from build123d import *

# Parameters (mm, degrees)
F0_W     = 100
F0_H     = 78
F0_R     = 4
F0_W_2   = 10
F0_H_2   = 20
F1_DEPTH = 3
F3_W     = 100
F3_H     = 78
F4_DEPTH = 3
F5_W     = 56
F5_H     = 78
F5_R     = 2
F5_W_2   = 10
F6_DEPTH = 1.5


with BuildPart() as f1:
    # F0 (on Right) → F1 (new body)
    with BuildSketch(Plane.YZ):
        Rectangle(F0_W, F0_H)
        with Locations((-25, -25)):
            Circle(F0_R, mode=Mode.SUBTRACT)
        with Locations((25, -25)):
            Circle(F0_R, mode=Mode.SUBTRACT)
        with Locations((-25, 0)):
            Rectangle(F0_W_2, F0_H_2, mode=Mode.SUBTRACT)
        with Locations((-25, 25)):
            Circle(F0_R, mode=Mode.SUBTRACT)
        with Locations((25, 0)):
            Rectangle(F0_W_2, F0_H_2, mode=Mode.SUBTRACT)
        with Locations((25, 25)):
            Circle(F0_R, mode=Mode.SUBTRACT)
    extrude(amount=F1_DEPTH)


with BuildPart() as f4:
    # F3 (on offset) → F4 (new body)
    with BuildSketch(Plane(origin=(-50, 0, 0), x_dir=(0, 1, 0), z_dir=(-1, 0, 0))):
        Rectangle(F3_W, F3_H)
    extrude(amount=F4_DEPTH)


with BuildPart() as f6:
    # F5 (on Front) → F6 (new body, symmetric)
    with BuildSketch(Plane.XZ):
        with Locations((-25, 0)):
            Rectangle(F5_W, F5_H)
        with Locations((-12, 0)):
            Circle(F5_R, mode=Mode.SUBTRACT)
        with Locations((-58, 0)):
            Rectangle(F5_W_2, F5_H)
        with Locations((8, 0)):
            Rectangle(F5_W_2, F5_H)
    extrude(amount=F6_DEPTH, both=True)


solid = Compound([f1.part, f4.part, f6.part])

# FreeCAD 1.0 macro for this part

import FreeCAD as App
import Part
import Sketcher
from FreeCAD import Vector
Q = App.Units.Quantity

doc = App.newDocument("Part")
body = doc.addObject("PartDesign::Body", "Body")

sketch1 = body.newObject("Sketcher::SketchObject", "Sketch")
sketch1.AttachmentSupport = (doc.getObject("YZ_Plane"), [""])
sketch1.MapMode = "FlatFace"
sketch1.addGeometry(Part.LineSegment(Vector(-50, 39, 0), Vector(-50, -39, 0)), False)
sketch1.addGeometry(Part.LineSegment(Vector(-50, -39, 0), Vector(50, -39, 0)), False)
sketch1.addGeometry(Part.LineSegment(Vector(50, -39, 0), Vector(50, 39, 0)), False)
sketch1.addGeometry(Part.LineSegment(Vector(50, 39, 0), Vector(-50, 39, 0)), False)
sketch1.addGeometry(Part.Circle(Vector(-25, -25, 0), Vector(0, 0, 1), 4), False)
sketch1.addGeometry(Part.Circle(Vector(25, -25, 0), Vector(0, 0, 1), 4), False)
sketch1.addGeometry(Part.LineSegment(Vector(-20, -10, 0), Vector(-30, -10, 0)), False)
sketch1.addGeometry(Part.LineSegment(Vector(-30, -10, 0), Vector(-30, 10, 0)), False)
sketch1.addGeometry(Part.LineSegment(Vector(-30, 10, 0), Vector(-20, 10, 0)), False)
sketch1.addGeometry(Part.LineSegment(Vector(-20, 10, 0), Vector(-20, -10, 0)), False)
sketch1.addGeometry(Part.Circle(Vector(-25, 25, 0), Vector(0, 0, 1), 4), False)
sketch1.addGeometry(Part.LineSegment(Vector(30, -10, 0), Vector(20, -10, 0)), False)
sketch1.addGeometry(Part.LineSegment(Vector(20, -10, 0), Vector(20, 10, 0)), False)
sketch1.addGeometry(Part.LineSegment(Vector(20, 10, 0), Vector(30, 10, 0)), False)
sketch1.addGeometry(Part.LineSegment(Vector(30, 10, 0), Vector(30, -10, 0)), False)
sketch1.addGeometry(Part.Circle(Vector(25, 25, 0), Vector(0, 0, 1), 4), False)
sketch1.addConstraint(Sketcher.Constraint("Coincident", 0, 2, 1, 1))
sketch1.addConstraint(Sketcher.Constraint("Coincident", 1, 2, 2, 1))
sketch1.addConstraint(Sketcher.Constraint("Coincident", 2, 2, 3, 1))
sketch1.addConstraint(Sketcher.Constraint("Coincident", 3, 2, 0, 1))
sketch1.addConstraint(Sketcher.Constraint("Coincident", 6, 2, 7, 1))
sketch1.addConstraint(Sketcher.Constraint("Coincident", 7, 2, 8, 1))
sketch1.addConstraint(Sketcher.Constraint("Coincident", 8, 2, 9, 1))
sketch1.addConstraint(Sketcher.Constraint("Coincident", 9, 2, 6, 1))
sketch1.addConstraint(Sketcher.Constraint("Coincident", 11, 2, 12, 1))
sketch1.addConstraint(Sketcher.Constraint("Coincident", 12, 2, 13, 1))
sketch1.addConstraint(Sketcher.Constraint("Coincident", 13, 2, 14, 1))
sketch1.addConstraint(Sketcher.Constraint("Coincident", 14, 2, 11, 1))
sketch1.addConstraint(Sketcher.Constraint("Vertical", 0))
sketch1.addConstraint(Sketcher.Constraint("Horizontal", 1))
sketch1.addConstraint(Sketcher.Constraint("Vertical", 2))
sketch1.addConstraint(Sketcher.Constraint("Horizontal", 3))
sketch1.addConstraint(Sketcher.Constraint("Horizontal", 6))
sketch1.addConstraint(Sketcher.Constraint("Vertical", 7))
sketch1.addConstraint(Sketcher.Constraint("Horizontal", 8))
sketch1.addConstraint(Sketcher.Constraint("Vertical", 9))
sketch1.addConstraint(Sketcher.Constraint("Horizontal", 11))
sketch1.addConstraint(Sketcher.Constraint("Vertical", 12))
sketch1.addConstraint(Sketcher.Constraint("Horizontal", 13))
sketch1.addConstraint(Sketcher.Constraint("Vertical", 14))
sketch1.addConstraint(Sketcher.Constraint("Equal", 4, 5))
sketch1.addConstraint(Sketcher.Constraint("Equal", 5, 10))
sketch1.addConstraint(Sketcher.Constraint("Equal", 10, 15))
sketch1.addConstraint(Sketcher.Constraint("Symmetric", 5, 3, 10, 3, -1, 1))
sketch1.addConstraint(Sketcher.Constraint("Symmetric", 4, 3, 15, 3, -1, 1))
sketch1.addConstraint(Sketcher.Constraint("Symmetric", 0, 2, 2, 2, -1, 1))
sketch1.addConstraint(Sketcher.Constraint("Symmetric", 8, 2, 11, 2, -1, 1))
sketch1.addConstraint(Sketcher.Constraint("Symmetric", 6, 2, 13, 2, -1, 1))
sketch1.addConstraint(Sketcher.Constraint("Symmetric", 4, 3, 5, 3, -2))
sketch1.addConstraint(Sketcher.Constraint("Horizontal", 9, 2, 11, 2))
sketch1.addConstraint(Sketcher.Constraint("Diameter", 4, Q("8 mm")))
sketch1.addConstraint(Sketcher.Constraint("DistanceX", 1, 1, 1, 2, Q("100 mm")))
sketch1.addConstraint(Sketcher.Constraint("DistanceX", 6, 2, 6, 1, Q("10 mm")))
sketch1.addConstraint(Sketcher.Constraint("DistanceY", 0, 2, 0, 1, Q("78 mm")))
sketch1.addConstraint(Sketcher.Constraint("DistanceY", 7, 1, 7, 2, Q("20 mm")))
sketch1.addConstraint(Sketcher.Constraint("DistanceX", 4, 3, -1, 1, Q("25 mm")))
sketch1.addConstraint(Sketcher.Constraint("DistanceY", 4, 3, -1, 1, Q("25 mm")))
sketch1.addConstraint(Sketcher.Constraint("DistanceX", 6, 2, -1, 1, Q("30 mm")))
pad1 = body.newObject("PartDesign::Pad", "Pad")
pad1.Profile = sketch1
pad1.Length = 3
body2 = doc.addObject("PartDesign::Body", "Body001")

sketch2 = body2.newObject("Sketcher::SketchObject", "Sketch001")
sketch2.AttachmentSupport = (doc.getObject("YZ_Plane001"), [""])
sketch2.MapMode = "FlatFace"
sketch2.AttachmentOffset = App.Placement(Vector(0, 0, -50), App.Rotation())
sketch2.addGeometry(Part.LineSegment(Vector(-50, -39, 0), Vector(-50, 39, 0)), False)
sketch2.addGeometry(Part.LineSegment(Vector(-50, 39, 0), Vector(50, 39, 0)), False)
sketch2.addGeometry(Part.LineSegment(Vector(50, 39, 0), Vector(50, -39, 0)), False)
sketch2.addGeometry(Part.LineSegment(Vector(50, -39, 0), Vector(-50, -39, 0)), False)
sketch2.addConstraint(Sketcher.Constraint("Coincident", 0, 2, 1, 1))
sketch2.addConstraint(Sketcher.Constraint("Coincident", 1, 2, 2, 1))
sketch2.addConstraint(Sketcher.Constraint("Coincident", 2, 2, 3, 1))
sketch2.addConstraint(Sketcher.Constraint("Coincident", 3, 2, 0, 1))
sketch2.addConstraint(Sketcher.Constraint("Vertical", 0))
sketch2.addConstraint(Sketcher.Constraint("Horizontal", 1))
sketch2.addConstraint(Sketcher.Constraint("Vertical", 2))
sketch2.addConstraint(Sketcher.Constraint("Horizontal", 3))
sketch2.addConstraint(Sketcher.Constraint("Symmetric", 0, 2, 2, 2, -1, 1))
sketch2.addConstraint(Sketcher.Constraint("DistanceX", 1, 1, 1, 2, Q("100 mm")))
sketch2.addConstraint(Sketcher.Constraint("DistanceY", 0, 1, 0, 2, Q("78 mm")))
pad2 = body2.newObject("PartDesign::Pad", "Pad001")
pad2.Profile = sketch2
pad2.Length = 3
pad2.Reversed = True
body3 = doc.addObject("PartDesign::Body", "Body002")

sketch3 = body3.newObject("Sketcher::SketchObject", "Sketch002")
sketch3.AttachmentSupport = (doc.getObject("XZ_Plane002"), [""])
sketch3.MapMode = "FlatFace"
sketch3.addGeometry(Part.LineSegment(Vector(-63, 39, 0), Vector(-63, -39, 0)), False)
sketch3.addGeometry(Part.LineSegment(Vector(-63, -39, 0), Vector(13, -39, 0)), False)
sketch3.addGeometry(Part.LineSegment(Vector(13, -39, 0), Vector(13, 39, 0)), False)
sketch3.addGeometry(Part.LineSegment(Vector(13, 39, 0), Vector(-63, 39, 0)), False)
sketch3.addGeometry(Part.Circle(Vector(-12, 0, 0), Vector(0, 0, 1), 2), False)
sketch3.addConstraint(Sketcher.Constraint("Coincident", 0, 2, 1, 1))
sketch3.addConstraint(Sketcher.Constraint("Coincident", 1, 2, 2, 1))
sketch3.addConstraint(Sketcher.Constraint("Coincident", 2, 2, 3, 1))
sketch3.addConstraint(Sketcher.Constraint("Coincident", 3, 2, 0, 1))
sketch3.addConstraint(Sketcher.Constraint("Vertical", 0))
sketch3.addConstraint(Sketcher.Constraint("Horizontal", 1))
sketch3.addConstraint(Sketcher.Constraint("Vertical", 2))
sketch3.addConstraint(Sketcher.Constraint("Horizontal", 3))
sketch3.addConstraint(Sketcher.Constraint("PointOnObject", 4, 3, -1))
sketch3.addConstraint(Sketcher.Constraint("Diameter", 4, Q("4 mm")))
sketch3.addConstraint(Sketcher.Constraint("DistanceX", 1, 1, 1, 2, Q("76 mm")))
sketch3.addConstraint(Sketcher.Constraint("DistanceY", 0, 2, 0, 1, Q("78 mm")))
sketch3.addConstraint(Sketcher.Constraint("DistanceX", 4, 3, -1, 1, Q("12 mm")))
sketch3.addConstraint(Sketcher.Constraint("DistanceX", 0, 2, -1, 1, Q("63 mm")))
sketch3.addConstraint(Sketcher.Constraint("DistanceY", 0, 2, -1, 1, Q("39 mm")))
pad3 = body3.newObject("PartDesign::Pad", "Pad002")
pad3.Profile = sketch3
pad3.Length = 3
pad3.Midplane = True

doc.recompute()
